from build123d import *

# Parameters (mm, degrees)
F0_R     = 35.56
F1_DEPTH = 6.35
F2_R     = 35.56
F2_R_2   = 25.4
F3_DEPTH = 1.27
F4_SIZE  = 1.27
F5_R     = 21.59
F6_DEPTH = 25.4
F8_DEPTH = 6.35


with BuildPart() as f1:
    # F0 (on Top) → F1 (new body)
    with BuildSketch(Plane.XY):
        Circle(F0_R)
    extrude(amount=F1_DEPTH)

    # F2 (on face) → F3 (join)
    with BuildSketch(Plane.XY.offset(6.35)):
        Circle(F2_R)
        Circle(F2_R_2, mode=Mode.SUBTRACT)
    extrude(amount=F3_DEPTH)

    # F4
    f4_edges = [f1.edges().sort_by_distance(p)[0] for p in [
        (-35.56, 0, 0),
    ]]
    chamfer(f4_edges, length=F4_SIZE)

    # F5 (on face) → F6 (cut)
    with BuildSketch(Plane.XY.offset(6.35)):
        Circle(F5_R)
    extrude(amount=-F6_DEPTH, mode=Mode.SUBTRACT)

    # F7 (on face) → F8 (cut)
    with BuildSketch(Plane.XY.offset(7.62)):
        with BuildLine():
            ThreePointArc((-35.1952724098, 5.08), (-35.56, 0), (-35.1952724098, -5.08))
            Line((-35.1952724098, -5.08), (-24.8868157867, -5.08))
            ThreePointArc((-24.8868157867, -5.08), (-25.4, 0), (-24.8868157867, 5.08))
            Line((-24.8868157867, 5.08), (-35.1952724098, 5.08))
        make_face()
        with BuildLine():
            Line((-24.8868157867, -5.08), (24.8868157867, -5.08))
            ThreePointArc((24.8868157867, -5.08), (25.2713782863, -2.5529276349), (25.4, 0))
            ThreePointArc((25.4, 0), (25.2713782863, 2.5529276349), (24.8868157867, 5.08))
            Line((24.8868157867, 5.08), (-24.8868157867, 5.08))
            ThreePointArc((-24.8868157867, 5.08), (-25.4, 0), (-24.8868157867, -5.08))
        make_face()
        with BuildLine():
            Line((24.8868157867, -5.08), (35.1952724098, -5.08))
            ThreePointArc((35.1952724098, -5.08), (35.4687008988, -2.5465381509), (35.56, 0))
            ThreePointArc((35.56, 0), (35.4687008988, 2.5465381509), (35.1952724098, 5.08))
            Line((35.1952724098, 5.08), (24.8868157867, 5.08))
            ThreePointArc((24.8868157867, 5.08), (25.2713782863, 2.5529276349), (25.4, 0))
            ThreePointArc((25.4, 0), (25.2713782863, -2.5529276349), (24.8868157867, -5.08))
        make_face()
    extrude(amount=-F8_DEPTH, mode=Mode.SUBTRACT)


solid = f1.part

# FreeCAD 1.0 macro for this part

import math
import FreeCAD as App
import Part
import Sketcher
Q = App.Units.Quantity


def edges_at(feature, points):
    """Names of the edges that pass closest to the given points."""
    edges = feature.Shape.Edges
    near = lambda p: min(range(len(edges)), key=lambda i: edges[i].distToShape(Part.Vertex(*p))[0])
    return sorted({f"Edge{near(p) + 1}" for p in points})

doc = App.newDocument("Part")
body = doc.addObject("PartDesign::Body", "Body")

# Sketch on XY plane
sketch1 = doc.addObject("Sketcher::SketchObject", "Sketch")
body.addObject(sketch1)
sketch1.AttachmentSupport = (doc.XY_Plane, [""])
sketch1.MapMode = "FlatFace"
sketch1.addGeometry(Part.Circle(App.Vector(0, 0, 0), App.Vector(0, 0, 1), 36), False)
sketch1.addConstraint([
    Sketcher.Constraint("Coincident", 0, 3, -1, 1),
    Sketcher.Constraint("Diameter", 0, Q("2.8 in")),
])
pad1 = doc.addObject("PartDesign::Pad", "Pad")
body.addObject(pad1)
pad1.Profile = sketch1
pad1.Length = Q("0.25 in")

# Sketch on XY plane
sketch2 = doc.addObject("Sketcher::SketchObject", "Sketch001")
body.addObject(sketch2)
sketch2.AttachmentSupport = (doc.XY_Plane, [""])
sketch2.MapMode = "FlatFace"
sketch2.AttachmentOffset = App.Placement(App.Vector(0, 0, 0.25 * 25.4), App.Rotation())
sketch2.addGeometry([
    Part.Circle(App.Vector(0, 0, 0), App.Vector(0, 0, 1), 36),
    Part.Circle(App.Vector(0, 0, 0), App.Vector(0, 0, 1), 25),
], False)
sketch2.addConstraint([
    Sketcher.Constraint("Coincident", 0, 3, -1, 1),
    Sketcher.Constraint("Coincident", 1, 3, -1, 1),
    Sketcher.Constraint("Diameter", 1, Q("2 in")),
    Sketcher.Constraint("Diameter", 0, Q("2.8 in")),
])
pad2 = doc.addObject("PartDesign::Pad", "Pad001")
body.addObject(pad2)
pad2.Profile = sketch2
pad2.Length = Q("0.05 in")
doc.recompute()

chamfer = doc.addObject("PartDesign::Chamfer", "Chamfer")
body.addObject(chamfer)
chamfer.Base = (pad2, edges_at(pad2, [(-35.56, 0, 0)]))
chamfer.Size = Q("0.05 in")

# Sketch on XY plane
sketch3 = doc.addObject("Sketcher::SketchObject", "Sketch002")
body.addObject(sketch3)
sketch3.AttachmentSupport = (doc.XY_Plane, [""])
sketch3.MapMode = "FlatFace"
sketch3.AttachmentOffset = App.Placement(App.Vector(0, 0, 0.25 * 25.4), App.Rotation())
sketch3.addGeometry(Part.Circle(App.Vector(0, 0, 0), App.Vector(0, 0, 1), 22), False)
sketch3.addConstraint([
    Sketcher.Constraint("Coincident", 0, 3, -1, 1),
    Sketcher.Constraint("Diameter", 0, Q("1.7 in")),
])
pocket1 = doc.addObject("PartDesign::Pocket", "Pocket")
body.addObject(pocket1)
pocket1.Profile = sketch3
pocket1.Length = Q("1 in")

# Sketch on XY plane
sketch4 = doc.addObject("Sketcher::SketchObject", "Sketch003")
body.addObject(sketch4)
sketch4.AttachmentSupport = (doc.XY_Plane, [""])
sketch4.MapMode = "FlatFace"
sketch4.AttachmentOffset = App.Placement(App.Vector(0, 0, 0.3 * 25.4), App.Rotation())
sketch4.addGeometry([
    Part.ArcOfCircle(Part.Circle(App.Vector(0, 0, 0), App.Vector(0, 0, 1), 36), math.radians(171.79), math.radians(188.21)),  # 0
    Part.LineSegment(App.Vector(-35, -5, 0), App.Vector(35, -5, 0)),  # 1
    Part.ArcOfCircle(Part.Circle(App.Vector(0, 0, 0), App.Vector(0, 0, 1), 36), math.radians(-8.21), math.radians(0)),  # 2
    Part.ArcOfCircle(Part.Circle(App.Vector(0, 0, 0), App.Vector(0, 0, 1), 36), math.radians(0), math.radians(8.21)),  # 3
    Part.LineSegment(App.Vector(35, 5, 0), App.Vector(-35, 5, 0)),  # 4
], False)
sketch4.addConstraint([
    Sketcher.Constraint("Coincident", 0, 2, 1, 1),
    Sketcher.Constraint("Coincident", 1, 2, 2, 1),
    Sketcher.Constraint("Tangent", 2, 2, 3, 1),
    Sketcher.Constraint("Coincident", 3, 2, 4, 1),
    Sketcher.Constraint("Coincident", 4, 2, 0, 1),
    Sketcher.Constraint("Horizontal", 1),
    Sketcher.Constraint("Horizontal", 4),
    Sketcher.Constraint("Coincident", 0, 3, -1, 1),
    Sketcher.Constraint("Coincident", 2, 3, -1, 1),
    Sketcher.Constraint("Equal", 0, 2),
    Sketcher.Constraint("Equal", 2, 3),
    Sketcher.Constraint("PointOnObject", 2, 2, -1),
    Sketcher.Constraint("Vertical", 1, 2, 3, 2),
    Sketcher.Constraint("Radius", 0, Q("1.4 in")),
    Sketcher.Constraint("DistanceY", 0, 2, -1, 1, Q("0.2 in")),
])
pocket2 = doc.addObject("PartDesign::Pocket", "Pocket001")
body.addObject(pocket2)
pocket2.Profile = sketch4
pocket2.Length = Q("0.25 in")

doc.recompute()
